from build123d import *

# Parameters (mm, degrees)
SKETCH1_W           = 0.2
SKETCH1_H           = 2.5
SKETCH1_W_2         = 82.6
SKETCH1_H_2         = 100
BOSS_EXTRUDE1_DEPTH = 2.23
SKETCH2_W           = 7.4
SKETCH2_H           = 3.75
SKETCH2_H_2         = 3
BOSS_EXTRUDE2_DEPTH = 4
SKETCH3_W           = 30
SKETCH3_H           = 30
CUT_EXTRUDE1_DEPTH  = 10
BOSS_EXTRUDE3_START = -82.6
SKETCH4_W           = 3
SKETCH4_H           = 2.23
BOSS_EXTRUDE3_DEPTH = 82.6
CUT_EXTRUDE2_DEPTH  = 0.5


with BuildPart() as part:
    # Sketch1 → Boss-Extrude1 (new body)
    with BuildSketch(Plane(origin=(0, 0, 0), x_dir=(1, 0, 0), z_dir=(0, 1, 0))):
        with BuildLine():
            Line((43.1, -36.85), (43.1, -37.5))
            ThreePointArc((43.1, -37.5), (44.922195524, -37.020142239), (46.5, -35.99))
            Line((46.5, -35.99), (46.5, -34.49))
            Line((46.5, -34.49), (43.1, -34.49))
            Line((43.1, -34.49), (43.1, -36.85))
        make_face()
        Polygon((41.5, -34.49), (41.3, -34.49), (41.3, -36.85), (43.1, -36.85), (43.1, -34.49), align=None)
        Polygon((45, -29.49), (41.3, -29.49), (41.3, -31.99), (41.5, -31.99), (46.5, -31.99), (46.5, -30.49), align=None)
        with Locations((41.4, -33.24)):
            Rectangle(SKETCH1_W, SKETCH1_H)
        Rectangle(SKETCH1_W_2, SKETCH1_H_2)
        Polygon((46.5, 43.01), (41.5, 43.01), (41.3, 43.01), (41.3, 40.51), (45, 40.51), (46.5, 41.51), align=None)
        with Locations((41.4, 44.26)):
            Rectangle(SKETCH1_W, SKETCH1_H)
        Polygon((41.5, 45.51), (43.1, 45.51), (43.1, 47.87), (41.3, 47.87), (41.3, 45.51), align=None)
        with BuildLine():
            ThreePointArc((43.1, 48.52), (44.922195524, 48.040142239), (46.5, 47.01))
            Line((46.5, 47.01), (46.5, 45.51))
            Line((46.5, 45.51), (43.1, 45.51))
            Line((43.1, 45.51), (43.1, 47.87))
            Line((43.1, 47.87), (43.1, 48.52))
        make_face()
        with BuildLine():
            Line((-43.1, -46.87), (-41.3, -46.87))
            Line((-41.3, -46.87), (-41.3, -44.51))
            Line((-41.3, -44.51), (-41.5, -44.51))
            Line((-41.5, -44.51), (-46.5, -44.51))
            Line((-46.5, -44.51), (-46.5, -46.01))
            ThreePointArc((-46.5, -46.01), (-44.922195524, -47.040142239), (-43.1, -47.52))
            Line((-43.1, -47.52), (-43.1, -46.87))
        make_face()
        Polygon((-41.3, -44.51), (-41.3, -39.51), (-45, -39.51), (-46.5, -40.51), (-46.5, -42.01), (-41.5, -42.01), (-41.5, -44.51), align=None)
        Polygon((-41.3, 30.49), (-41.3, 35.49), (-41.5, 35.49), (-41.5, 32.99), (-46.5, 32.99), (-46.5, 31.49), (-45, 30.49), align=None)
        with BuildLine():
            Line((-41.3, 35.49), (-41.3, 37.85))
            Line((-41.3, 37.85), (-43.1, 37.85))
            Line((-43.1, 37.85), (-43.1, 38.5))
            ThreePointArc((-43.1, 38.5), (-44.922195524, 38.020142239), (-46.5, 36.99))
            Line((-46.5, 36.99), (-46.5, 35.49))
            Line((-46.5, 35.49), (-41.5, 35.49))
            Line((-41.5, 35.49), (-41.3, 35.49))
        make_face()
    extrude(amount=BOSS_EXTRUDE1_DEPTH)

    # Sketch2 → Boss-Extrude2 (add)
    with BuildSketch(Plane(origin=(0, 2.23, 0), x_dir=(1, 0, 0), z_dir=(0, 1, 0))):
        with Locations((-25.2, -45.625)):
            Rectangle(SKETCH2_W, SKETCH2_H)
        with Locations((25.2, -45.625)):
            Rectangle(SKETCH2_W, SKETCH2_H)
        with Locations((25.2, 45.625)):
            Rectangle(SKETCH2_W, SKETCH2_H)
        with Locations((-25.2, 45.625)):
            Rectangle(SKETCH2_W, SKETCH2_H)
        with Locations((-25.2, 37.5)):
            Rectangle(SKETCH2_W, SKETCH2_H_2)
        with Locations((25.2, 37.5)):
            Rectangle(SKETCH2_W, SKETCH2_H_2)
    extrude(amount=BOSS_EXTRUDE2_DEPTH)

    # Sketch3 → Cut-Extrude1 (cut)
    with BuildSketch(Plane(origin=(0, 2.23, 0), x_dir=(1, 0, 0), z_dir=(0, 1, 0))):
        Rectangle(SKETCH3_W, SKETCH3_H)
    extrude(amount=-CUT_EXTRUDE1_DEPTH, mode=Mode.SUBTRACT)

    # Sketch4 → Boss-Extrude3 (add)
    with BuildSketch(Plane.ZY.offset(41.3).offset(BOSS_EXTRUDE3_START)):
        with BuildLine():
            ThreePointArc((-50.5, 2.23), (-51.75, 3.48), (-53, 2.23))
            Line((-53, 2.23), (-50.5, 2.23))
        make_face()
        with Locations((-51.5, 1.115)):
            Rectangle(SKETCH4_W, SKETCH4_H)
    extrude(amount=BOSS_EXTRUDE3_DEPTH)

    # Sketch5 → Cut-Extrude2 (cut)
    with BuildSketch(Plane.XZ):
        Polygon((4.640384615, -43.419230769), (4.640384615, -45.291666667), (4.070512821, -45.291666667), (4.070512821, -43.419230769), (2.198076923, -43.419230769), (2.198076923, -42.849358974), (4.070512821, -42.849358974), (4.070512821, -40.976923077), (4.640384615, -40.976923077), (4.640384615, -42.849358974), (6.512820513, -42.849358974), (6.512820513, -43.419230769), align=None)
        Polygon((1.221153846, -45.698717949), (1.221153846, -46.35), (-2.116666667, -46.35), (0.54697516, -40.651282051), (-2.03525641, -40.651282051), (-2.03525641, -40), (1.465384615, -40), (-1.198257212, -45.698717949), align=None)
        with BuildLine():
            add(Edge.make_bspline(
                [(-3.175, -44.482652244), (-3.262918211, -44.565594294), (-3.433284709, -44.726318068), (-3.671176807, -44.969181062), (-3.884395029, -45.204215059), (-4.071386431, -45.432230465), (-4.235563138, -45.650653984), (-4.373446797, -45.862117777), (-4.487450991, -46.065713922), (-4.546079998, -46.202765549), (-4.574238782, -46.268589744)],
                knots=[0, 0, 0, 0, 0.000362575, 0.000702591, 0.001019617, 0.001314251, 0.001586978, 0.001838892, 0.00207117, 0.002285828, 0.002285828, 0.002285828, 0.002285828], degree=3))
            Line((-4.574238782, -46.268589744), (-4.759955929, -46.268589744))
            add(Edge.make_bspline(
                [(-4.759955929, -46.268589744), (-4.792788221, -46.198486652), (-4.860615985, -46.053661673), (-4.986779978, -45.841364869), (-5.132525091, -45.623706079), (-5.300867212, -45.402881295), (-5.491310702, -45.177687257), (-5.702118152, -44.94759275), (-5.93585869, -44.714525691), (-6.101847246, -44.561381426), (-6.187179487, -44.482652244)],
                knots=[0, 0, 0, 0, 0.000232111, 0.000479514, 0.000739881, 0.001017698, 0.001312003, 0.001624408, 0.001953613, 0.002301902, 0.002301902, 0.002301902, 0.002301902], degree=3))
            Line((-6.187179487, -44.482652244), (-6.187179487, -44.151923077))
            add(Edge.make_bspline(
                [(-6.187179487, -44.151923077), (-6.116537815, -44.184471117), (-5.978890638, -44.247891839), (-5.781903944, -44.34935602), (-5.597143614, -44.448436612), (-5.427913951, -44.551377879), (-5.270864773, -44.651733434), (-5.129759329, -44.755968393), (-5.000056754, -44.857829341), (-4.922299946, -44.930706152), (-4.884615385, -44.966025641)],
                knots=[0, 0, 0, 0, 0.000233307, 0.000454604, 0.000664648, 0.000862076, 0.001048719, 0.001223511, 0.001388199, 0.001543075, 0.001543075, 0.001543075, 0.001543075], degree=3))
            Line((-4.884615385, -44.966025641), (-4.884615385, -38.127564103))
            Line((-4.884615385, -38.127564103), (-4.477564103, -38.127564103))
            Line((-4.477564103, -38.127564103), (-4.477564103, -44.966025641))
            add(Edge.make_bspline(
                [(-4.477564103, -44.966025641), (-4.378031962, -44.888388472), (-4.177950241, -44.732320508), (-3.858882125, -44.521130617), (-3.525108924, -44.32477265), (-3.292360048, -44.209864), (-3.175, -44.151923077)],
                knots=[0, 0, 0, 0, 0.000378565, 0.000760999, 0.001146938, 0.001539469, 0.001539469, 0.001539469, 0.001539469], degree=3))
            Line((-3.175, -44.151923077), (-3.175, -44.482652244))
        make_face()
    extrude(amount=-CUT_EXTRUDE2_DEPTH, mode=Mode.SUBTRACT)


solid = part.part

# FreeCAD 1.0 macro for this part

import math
import FreeCAD as App
import Part
import Sketcher
Q = App.Units.Quantity


def add_polygon(sketch, points):
    """Adds a closed chain of lines whose ends are joined by coincident constraints."""
    first, n = sketch.GeometryCount, len(points)
    for a, b in zip(points, points[1:] + points[:1]):
        sketch.addGeometry(Part.LineSegment(App.Vector(*a, 0), App.Vector(*b, 0)), False)
    for i in range(n):
        sketch.addConstraint(Sketcher.Constraint("Coincident", first + i, 2, first + (i + 1) % n, 1))

doc = App.newDocument("Part")
params = doc.addObject("Spreadsheet::Sheet", "Params")
for row, (alias, value) in enumerate([
    ("sketch1_width", "5 mm"),
    ("sketch1_height", "70 mm"),
    ("sketch1_width2", "3.7 mm"),
    ("sketch1_width3", "1.8 mm"),
    ("sketch1_width4", "82.6 mm"),
    ("pad1_length", "2.23 mm"),
    ("sketch2_height", "3 mm"),
    ("sketch2_width", "7.4 mm"),
    ("sketch2_height2", "3.75 mm"),
    ("pad2_length", "4 mm"),
    ("sketch3_width", "30 mm"),
    ("pocket1_length", "10 mm"),
    ("sketch4_height", "3 mm"),
    ("sketch4_radius", "1.25 mm"),
    ("sketch4_width", "2.23 mm"),
    ("pad3_length", "82.6 mm"),
    ("pocket2_length", "0.5 mm"),
], start=1):
    params.set(f"A{row}", alias)
    params.set(f"B{row}", "=" + value)
    params.setAlias(f"B{row}", alias)

body = doc.addObject("PartDesign::Body", "Body")

sketch1 = doc.addObject("Sketcher::SketchObject", "Sketch")
body.addObject(sketch1)
sketch1.AttachmentSupport = (doc.XZ_Plane, [""])
sketch1.MapMode = "FlatFace"
sketch1.addGeometry([
    Part.ArcOfCircle(Part.Circle(App.Vector(42.5, 31.6, 0), App.Vector(0, 0, 1), 5.9), math.radians(48), math.radians(84)),
    Part.LineSegment(App.Vector(46.5, 36, 0), App.Vector(46.5, 34.5, 0)),
    Part.LineSegment(App.Vector(46.5, 34.5, 0), App.Vector(41.5, 34.5, 0)),
    Part.LineSegment(App.Vector(41.5, 34.5, 0), App.Vector(41.5, 32, 0)),
    Part.LineSegment(App.Vector(41.5, 32, 0), App.Vector(46.5, 32, 0)),
    Part.LineSegment(App.Vector(46.5, 32, 0), App.Vector(46.5, 30.5, 0)),
    Part.LineSegment(App.Vector(46.5, 30.5, 0), App.Vector(45, 29.5, 0)),
    Part.LineSegment(App.Vector(45, 29.5, 0), App.Vector(41.3, 29.5, 0)),
    Part.LineSegment(App.Vector(41.3, 29.5, 0), App.Vector(41.3, -40.5, 0)),
    Part.LineSegment(App.Vector(41.3, -40.5, 0), App.Vector(45, -40.5, 0)),
    Part.LineSegment(App.Vector(45, -40.5, 0), App.Vector(46.5, -41.5, 0)),
    Part.LineSegment(App.Vector(46.5, -41.5, 0), App.Vector(46.5, -43, 0)),
    Part.LineSegment(App.Vector(46.5, -43, 0), App.Vector(41.5, -43, 0)),
    Part.LineSegment(App.Vector(41.5, -43, 0), App.Vector(41.5, -45.5, 0)),
    Part.LineSegment(App.Vector(41.5, -45.5, 0), App.Vector(46.5, -45.5, 0)),
    Part.LineSegment(App.Vector(46.5, -45.5, 0), App.Vector(46.5, -47, 0)),
    Part.ArcOfCircle(Part.Circle(App.Vector(42.5, -42.7, 0), App.Vector(0, 0, 1), 5.9), math.radians(-84), math.radians(-48)),
    Part.LineSegment(App.Vector(43.1, -48.5, 0), App.Vector(43.1, -47.9, 0)),
    Part.LineSegment(App.Vector(43.1, -47.9, 0), App.Vector(41.3, -47.9, 0)),
    Part.LineSegment(App.Vector(41.3, -47.9, 0), App.Vector(41.3, -50, 0)),
    Part.LineSegment(App.Vector(41.3, -50, 0), App.Vector(-41.3, -50, 0)),
    Part.LineSegment(App.Vector(-41.3, -50, 0), App.Vector(-41.3, -37.9, 0)),
    Part.LineSegment(App.Vector(-41.3, -37.9, 0), App.Vector(-43.1, -37.9, 0)),
    Part.LineSegment(App.Vector(-43.1, -37.9, 0), App.Vector(-43.1, -38.5, 0)),
    Part.ArcOfCircle(Part.Circle(App.Vector(-42.5, -32.6, 0), App.Vector(0, 0, 1), 5.9), math.radians(-132), math.radians(-96)),
    Part.LineSegment(App.Vector(-46.5, -37, 0), App.Vector(-46.5, -35.5, 0)),
    Part.LineSegment(App.Vector(-46.5, -35.5, 0), App.Vector(-41.5, -35.5, 0)),
    Part.LineSegment(App.Vector(-41.5, -35.5, 0), App.Vector(-41.5, -33, 0)),
    Part.LineSegment(App.Vector(-41.5, -33, 0), App.Vector(-46.5, -33, 0)),
    Part.LineSegment(App.Vector(-46.5, -33, 0), App.Vector(-46.5, -31.5, 0)),
    Part.LineSegment(App.Vector(-46.5, -31.5, 0), App.Vector(-45, -30.5, 0)),
    Part.LineSegment(App.Vector(-45, -30.5, 0), App.Vector(-41.3, -30.5, 0)),
    Part.LineSegment(App.Vector(-41.3, -30.5, 0), App.Vector(-41.3, 39.5, 0)),
    Part.LineSegment(App.Vector(-41.3, 39.5, 0), App.Vector(-45, 39.5, 0)),
    Part.LineSegment(App.Vector(-45, 39.5, 0), App.Vector(-46.5, 40.5, 0)),
    Part.LineSegment(App.Vector(-46.5, 40.5, 0), App.Vector(-46.5, 42, 0)),
    Part.LineSegment(App.Vector(-46.5, 42, 0), App.Vector(-41.5, 42, 0)),
    Part.LineSegment(App.Vector(-41.5, 42, 0), App.Vector(-41.5, 44.5, 0)),
    Part.LineSegment(App.Vector(-41.5, 44.5, 0), App.Vector(-46.5, 44.5, 0)),
    Part.LineSegment(App.Vector(-46.5, 44.5, 0), App.Vector(-46.5, 46, 0)),
    Part.ArcOfCircle(Part.Circle(App.Vector(-42.5, 41.7, 0), App.Vector(0, 0, 1), 5.9), math.radians(96), math.radians(132)),
    Part.LineSegment(App.Vector(-43.1, 47.5, 0), App.Vector(-43.1, 46.9, 0)),
    Part.LineSegment(App.Vector(-43.1, 46.9, 0), App.Vector(-41.3, 46.9, 0)),
    Part.LineSegment(App.Vector(-41.3, 46.9, 0), App.Vector(-41.3, 50, 0)),
    Part.LineSegment(App.Vector(-41.3, 50, 0), App.Vector(41.3, 50, 0)),
    Part.LineSegment(App.Vector(41.3, 50, 0), App.Vector(41.3, 36.9, 0)),
    Part.LineSegment(App.Vector(41.3, 36.9, 0), App.Vector(43.1, 36.9, 0)),
    Part.LineSegment(App.Vector(43.1, 36.9, 0), App.Vector(43.1, 37.5, 0)),
], False)
sketch1.addConstraint([
    Sketcher.Constraint("Coincident", 0, 1, 1, 1),
    Sketcher.Constraint("Coincident", 1, 2, 2, 1),
    Sketcher.Constraint("Coincident", 2, 2, 3, 1),
    Sketcher.Constraint("Coincident", 3, 2, 4, 1),
    Sketcher.Constraint("Coincident", 4, 2, 5, 1),
    Sketcher.Constraint("Coincident", 5, 2, 6, 1),
    Sketcher.Constraint("Coincident", 6, 2, 7, 1),
    Sketcher.Constraint("Coincident", 7, 2, 8, 1),
    Sketcher.Constraint("Coincident", 8, 2, 9, 1),
    Sketcher.Constraint("Coincident", 9, 2, 10, 1),
    Sketcher.Constraint("Coincident", 10, 2, 11, 1),
    Sketcher.Constraint("Coincident", 11, 2, 12, 1),
    Sketcher.Constraint("Coincident", 12, 2, 13, 1),
    Sketcher.Constraint("Coincident", 13, 2, 14, 1),
    Sketcher.Constraint("Coincident", 14, 2, 15, 1),
    Sketcher.Constraint("Coincident", 15, 2, 16, 2),
    Sketcher.Constraint("Coincident", 16, 1, 17, 1),
    Sketcher.Constraint("Coincident", 17, 2, 18, 1),
    Sketcher.Constraint("Coincident", 18, 2, 19, 1),
    Sketcher.Constraint("Coincident", 19, 2, 20, 1),
    Sketcher.Constraint("Coincident", 20, 2, 21, 1),
    Sketcher.Constraint("Coincident", 21, 2, 22, 1),
    Sketcher.Constraint("Coincident", 22, 2, 23, 1),
    Sketcher.Constraint("Coincident", 23, 2, 24, 2),
    Sketcher.Constraint("Coincident", 24, 1, 25, 1),
    Sketcher.Constraint("Coincident", 25, 2, 26, 1),
    Sketcher.Constraint("Coincident", 26, 2, 27, 1),
    Sketcher.Constraint("Coincident", 27, 2, 28, 1),
    Sketcher.Constraint("Coincident", 28, 2, 29, 1),
    Sketcher.Constraint("Coincident", 29, 2, 30, 1),
    Sketcher.Constraint("Coincident", 30, 2, 31, 1),
    Sketcher.Constraint("Coincident", 31, 2, 32, 1),
    Sketcher.Constraint("Coincident", 32, 2, 33, 1),
    Sketcher.Constraint("Coincident", 33, 2, 34, 1),
    Sketcher.Constraint("Coincident", 34, 2, 35, 1),
    Sketcher.Constraint("Coincident", 35, 2, 36, 1),
    Sketcher.Constraint("Coincident", 36, 2, 37, 1),
    Sketcher.Constraint("Coincident", 37, 2, 38, 1),
    Sketcher.Constraint("Coincident", 38, 2, 39, 1),
    Sketcher.Constraint("Coincident", 39, 2, 40, 2),
    Sketcher.Constraint("Coincident", 40, 1, 41, 1),
    Sketcher.Constraint("Coincident", 41, 2, 42, 1),
    Sketcher.Constraint("Coincident", 42, 2, 43, 1),
    Sketcher.Constraint("Coincident", 43, 2, 44, 1),
    Sketcher.Constraint("Coincident", 44, 2, 45, 1),
    Sketcher.Constraint("Coincident", 45, 2, 46, 1),
    Sketcher.Constraint("Coincident", 46, 2, 47, 1),
    Sketcher.Constraint("Coincident", 47, 2, 0, 2),
    Sketcher.Constraint("Vertical", 1),
    Sketcher.Constraint("Horizontal", 2),
    Sketcher.Constraint("Vertical", 3),
    Sketcher.Constraint("Horizontal", 4),
    Sketcher.Constraint("Vertical", 5),
    Sketcher.Constraint("Horizontal", 7),
    Sketcher.Constraint("Vertical", 8),
    Sketcher.Constraint("Horizontal", 9),
    Sketcher.Constraint("Vertical", 11),
    Sketcher.Constraint("Horizontal", 12),
    Sketcher.Constraint("Vertical", 13),
    Sketcher.Constraint("Horizontal", 14),
    Sketcher.Constraint("Vertical", 15),
    Sketcher.Constraint("Vertical", 17),
    Sketcher.Constraint("Horizontal", 18),
    Sketcher.Constraint("Vertical", 19),
    Sketcher.Constraint("Horizontal", 20),
    Sketcher.Constraint("Vertical", 21),
    Sketcher.Constraint("Horizontal", 22),
    Sketcher.Constraint("Vertical", 23),
    Sketcher.Constraint("Vertical", 25),
    Sketcher.Constraint("Horizontal", 26),
    Sketcher.Constraint("Vertical", 27),
    Sketcher.Constraint("Horizontal", 28),
    Sketcher.Constraint("Vertical", 29),
    Sketcher.Constraint("Horizontal", 31),
    Sketcher.Constraint("Vertical", 32),
    Sketcher.Constraint("Horizontal", 33),
    Sketcher.Constraint("Vertical", 35),
    Sketcher.Constraint("Horizontal", 36),
    Sketcher.Constraint("Vertical", 37),
    Sketcher.Constraint("Horizontal", 38),
    Sketcher.Constraint("Vertical", 39),
    Sketcher.Constraint("Vertical", 41),
    Sketcher.Constraint("Horizontal", 42),
    Sketcher.Constraint("Vertical", 43),
    Sketcher.Constraint("Horizontal", 44),
    Sketcher.Constraint("Vertical", 45),
    Sketcher.Constraint("Horizontal", 46),
    Sketcher.Constraint("Vertical", 47),
    Sketcher.Constraint("Equal", 0, 16),
    Sketcher.Constraint("Equal", 16, 24),
    Sketcher.Constraint("Equal", 24, 40),
    Sketcher.Constraint("Symmetric", 19, 2, 43, 2, -1, 1),
    Sketcher.Constraint("Parallel", 6, 30),
    Sketcher.Constraint("Parallel", 10, 34),
    Sketcher.Constraint("Vertical", 0, 3, 16, 3),
    Sketcher.Constraint("Vertical", 24, 3, 40, 3),
    Sketcher.Constraint("Vertical", 1, 2, 4, 2),
    Sketcher.Constraint("Vertical", 6, 2, 9, 2),
    Sketcher.Constraint("Vertical", 5, 2, 10, 2),
    Sketcher.Constraint("Vertical", 3, 2, 12, 2),
    Sketcher.Constraint("Vertical", 11, 2, 14, 2),
    Sketcher.Constraint("Vertical", 8, 2, 18, 2),
    Sketcher.Constraint("Vertical", 25, 2, 28, 2),
    Sketcher.Constraint("Vertical", 21, 2, 31, 2),
    Sketcher.Constraint("Vertical", 30, 2, 33, 2),
    Sketcher.Constraint("Vertical", 29, 2, 34, 2),
    Sketcher.Constraint("Vertical", 27, 2, 36, 2),
    Sketcher.Constraint("Vertical", 35, 2, 38, 2),
    Sketcher.Constraint("Vertical", 23, 2, 40, 1),
    Sketcher.Constraint("Vertical", 32, 2, 42, 2),
    Sketcher.Constraint("Vertical", 19, 2, 44, 2),
    Sketcher.Constraint("Vertical", 17, 2, 46, 2),
    Sketcher.Constraint("Equal", 18, 22),
    Sketcher.Constraint("Equal", 14, 26),
    Sketcher.Constraint("Equal", 9, 31),
    Sketcher.Constraint("Equal", 1, 5),
    Sketcher.Constraint("Equal", 5, 11),
    Sketcher.Constraint("Equal", 3, 13),
    Sketcher.Constraint("Equal", 11, 15),
    Sketcher.Constraint("Equal", 17, 23),
    Sketcher.Constraint("Equal", 15, 25),
    Sketcher.Constraint("Equal", 13, 27),
    Sketcher.Constraint("Equal", 25, 29),
    Sketcher.Constraint("Equal", 8, 32),
    Sketcher.Constraint("Equal", 29, 35),
    Sketcher.Constraint("Equal", 27, 37),
    Sketcher.Constraint("Equal", 35, 39),
    Sketcher.Constraint("Equal", 23, 41),
    Sketcher.Constraint("Equal", 41, 47),
    Sketcher.Constraint("Equal", 6, 10),
    Sketcher.Constraint("Equal", 10, 30),
    Sketcher.Constraint("DistanceX", 2, 2, 2, 1, Q("5 mm")),
    Sketcher.Constraint("DistanceY", 8, 2, 8, 1, Q("70 mm")),
    Sketcher.Constraint("DistanceX", 7, 2, 7, 1, Q("3.7 mm")),
    Sketcher.Constraint("DistanceX", 18, 2, 18, 1, Q("1.8 mm")),
    Sketcher.Constraint("DistanceX", 20, 2, 20, 1, Q("82.6 mm")),
    Sketcher.Constraint("DistanceY", 1, 2, 1, 1, Q("1.5 mm")),
    Sketcher.Constraint("DistanceY", 3, 2, 3, 1, Q("2.5 mm")),
    Sketcher.Constraint("DistanceY", 19, 2, -1, 1, Q("50 mm")),
    Sketcher.Constraint("Radius", 0, Q("5.897 mm")),
    Sketcher.Constraint("DistanceY", 6, 2, 5, 2, Q("1 mm")),
    Sketcher.Constraint("DistanceY", 17, 1, 17, 2, Q("0.65 mm")),
    Sketcher.Constraint("DistanceY", 19, 2, 19, 1, Q("2.13 mm")),
    Sketcher.Constraint("DistanceY", 21, 1, 21, 2, Q("12.15 mm")),
    Sketcher.Constraint("DistanceY", 43, 1, 43, 2, Q("3.13 mm")),
    Sketcher.Constraint("DistanceY", 45, 2, 45, 1, Q("13.15 mm")),
    Sketcher.Constraint("DistanceX", -1, 1, 0, 1, Q("46.5 mm")),
])
sketch1.setExpression("Constraints[131]", "Params.sketch1_width")
sketch1.setExpression("Constraints[132]", "Params.sketch1_height")
sketch1.setExpression("Constraints[133]", "Params.sketch1_width2")
sketch1.setExpression("Constraints[134]", "Params.sketch1_width3")
sketch1.setExpression("Constraints[135]", "Params.sketch1_width4")
pad1 = doc.addObject("PartDesign::Pad", "Pad")
body.addObject(pad1)
pad1.Profile = sketch1
pad1.setExpression("Length", "Params.pad1_length")
pad1.Reversed = True

sketch2 = doc.addObject("Sketcher::SketchObject", "Sketch001")
body.addObject(sketch2)
sketch2.AttachmentSupport = (doc.XZ_Plane, [""])
sketch2.MapMode = "FlatFace"
sketch2.AttachmentOffset = App.Placement(App.Vector(0, 0, -2.23), App.Rotation())
add_polygon(sketch2, [(-28.9, 43.8), (-28.9, 47.5), (-21.5, 47.5), (-21.5, 43.8)])
add_polygon(sketch2, [(21.5, 43.8), (21.5, 47.5), (28.9, 47.5), (28.9, 43.8)])
add_polygon(sketch2, [(21.5, -47.5), (21.5, -43.8), (28.9, -43.8), (28.9, -47.5)])
add_polygon(sketch2, [(-28.9, -47.5), (-28.9, -43.8), (-21.5, -43.8), (-21.5, -47.5)])
add_polygon(sketch2, [(-28.9, -39), (-28.9, -36), (-21.5, -36), (-21.5, -39)])
add_polygon(sketch2, [(21.5, -39), (21.5, -36), (28.9, -36), (28.9, -39)])
sketch2.addConstraint([
    Sketcher.Constraint("Vertical", 0),
    Sketcher.Constraint("Horizontal", 1),
    Sketcher.Constraint("Vertical", 2),
    Sketcher.Constraint("Horizontal", 3),
    Sketcher.Constraint("Vertical", 4),
    Sketcher.Constraint("Horizontal", 5),
    Sketcher.Constraint("Vertical", 6),
    Sketcher.Constraint("Horizontal", 7),
    Sketcher.Constraint("Vertical", 8),
    Sketcher.Constraint("Horizontal", 9),
    Sketcher.Constraint("Vertical", 10),
    Sketcher.Constraint("Horizontal", 11),
    Sketcher.Constraint("Vertical", 12),
    Sketcher.Constraint("Horizontal", 13),
    Sketcher.Constraint("Vertical", 14),
    Sketcher.Constraint("Horizontal", 15),
    Sketcher.Constraint("Vertical", 16),
    Sketcher.Constraint("Horizontal", 17),
    Sketcher.Constraint("Vertical", 18),
    Sketcher.Constraint("Horizontal", 19),
    Sketcher.Constraint("Vertical", 20),
    Sketcher.Constraint("Horizontal", 21),
    Sketcher.Constraint("Vertical", 22),
    Sketcher.Constraint("Horizontal", 23),
    Sketcher.Constraint("Symmetric", 2, 2, 8, 2, -1, 1),
    Sketcher.Constraint("Symmetric", 0, 2, 10, 2, -1, 1),
    Sketcher.Constraint("Symmetric", 6, 2, 12, 2, -1, 1),
    Sketcher.Constraint("Symmetric", 4, 2, 14, 2, -1, 1),
    Sketcher.Constraint("Symmetric", 1, 2, 4, 2, -2),
    Sketcher.Constraint("Symmetric", 3, 2, 6, 2, -2),
    Sketcher.Constraint("Symmetric", 17, 2, 20, 2, -2),
    Sketcher.Constraint("Symmetric", 19, 2, 22, 2, -2),
    Sketcher.Constraint("Vertical", 15, 2, 16, 2),
    Sketcher.Constraint("Vertical", 14, 2, 17, 2),
    Sketcher.Constraint("DistanceY", 16, 1, 16, 2, Q("3 mm")),
    Sketcher.Constraint("DistanceX", 1, 1, 1, 2, Q("7.4 mm")),
    Sketcher.Constraint("DistanceY", 16, 2, -1, 1, Q("36 mm")),
    Sketcher.Constraint("DistanceX", 1, 2, 4, 2, Q("43 mm")),
    Sketcher.Constraint("DistanceY", 10, 2, 5, 2, Q("95 mm")),
    Sketcher.Constraint("DistanceY", 0, 1, 0, 2, Q("3.75 mm")),
])
sketch2.setExpression("Constraints[58]", "Params.sketch2_height")
sketch2.setExpression("Constraints[59]", "Params.sketch2_width")
sketch2.setExpression("Constraints[63]", "Params.sketch2_height2")
pad2 = doc.addObject("PartDesign::Pad", "Pad001")
body.addObject(pad2)
pad2.Profile = sketch2
pad2.setExpression("Length", "Params.pad2_length")
pad2.Reversed = True

sketch3 = doc.addObject("Sketcher::SketchObject", "Sketch002")
body.addObject(sketch3)
sketch3.AttachmentSupport = (doc.XZ_Plane, [""])
sketch3.MapMode = "FlatFace"
sketch3.AttachmentOffset = App.Placement(App.Vector(0, 0, -2.23), App.Rotation())
add_polygon(sketch3, [(-15, -15), (-15, 15), (15, 15), (15, -15)])
sketch3.addConstraint([
    Sketcher.Constraint("Vertical", 0),
    Sketcher.Constraint("Horizontal", 1),
    Sketcher.Constraint("Vertical", 2),
    Sketcher.Constraint("Horizontal", 3),
    Sketcher.Constraint("Symmetric", 0, 2, 2, 2, -1, 1),
    Sketcher.Constraint("Equal", 3, 0),
    Sketcher.Constraint("DistanceX", 1, 1, 1, 2, Q("30 mm")),
])
sketch3.setExpression("Constraints[10]", "Params.sketch3_width")
pocket1 = doc.addObject("PartDesign::Pocket", "Pocket")
body.addObject(pocket1)
pocket1.Profile = sketch3
pocket1.setExpression("Length", "Params.pocket1_length")
pocket1.Reversed = True

sketch4 = doc.addObject("Sketcher::SketchObject", "Sketch003")
body.addObject(sketch4)
sketch4.AttachmentSupport = (doc.YZ_Plane, [""])
sketch4.MapMode = "FlatFace"
sketch4.AttachmentOffset = App.Placement(App.Vector(0, 0, 41.3), App.Rotation())
sketch4.addGeometry([
    Part.ArcOfCircle(Part.Circle(App.Vector(2.2, -51.8, 0), App.Vector(0, 0, 1), 1.2), math.radians(-90), math.radians(90)),
    Part.LineSegment(App.Vector(2.2, -53, 0), App.Vector(0, -53, 0)),
    Part.LineSegment(App.Vector(0, -53, 0), App.Vector(0, -50, 0)),
    Part.LineSegment(App.Vector(0, -50, 0), App.Vector(2.2, -50, 0)),
    Part.LineSegment(App.Vector(2.2, -50, 0), App.Vector(2.2, -50.5, 0)),
], False)
sketch4.addConstraint([
    Sketcher.Constraint("Tangent", 0, 1, 1, 1),
    Sketcher.Constraint("Coincident", 1, 2, 2, 1),
    Sketcher.Constraint("Coincident", 2, 2, 3, 1),
    Sketcher.Constraint("Coincident", 3, 2, 4, 1),
    Sketcher.Constraint("Coincident", 4, 2, 0, 2),
    Sketcher.Constraint("Horizontal", 1),
    Sketcher.Constraint("Vertical", 2),
    Sketcher.Constraint("Horizontal", 3),
    Sketcher.Constraint("Vertical", 4),
    Sketcher.Constraint("PointOnObject", 1, 2, -2),
    Sketcher.Constraint("Vertical", 0, 1, 3, 2),
    Sketcher.Constraint("DistanceY", 2, 1, 2, 2, Q("3 mm")),
    Sketcher.Constraint("Radius", 0, Q("1.25 mm")),
    Sketcher.Constraint("DistanceY", 0, 1, -1, 1, Q("53 mm")),
    Sketcher.Constraint("DistanceX", 1, 2, 1, 1, Q("2.23 mm")),
])
sketch4.setExpression("Constraints[11]", "Params.sketch4_height")
sketch4.setExpression("Constraints[12]", "Params.sketch4_radius")
sketch4.setExpression("Constraints[14]", "Params.sketch4_width")
pad3 = doc.addObject("PartDesign::Pad", "Pad002")
body.addObject(pad3)
pad3.Profile = sketch4
pad3.setExpression("Length", "Params.pad3_length")
pad3.Reversed = True

sketch5 = doc.addObject("Sketcher::SketchObject", "Sketch004")
body.addObject(sketch5)
sketch5.AttachmentSupport = (doc.XZ_Plane, [""])
sketch5.MapMode = "FlatFace"
add_polygon(sketch5, [(4.640385, -45.291667), (4.640385, -43.419231), (6.512821, -43.419231), (6.512821, -42.849359), (4.640385, -42.849359), (4.640385, -40.976923), (4.070513, -40.976923), (4.070513, -42.849359), (2.198077, -42.849359), (2.198077, -43.419231), (4.070513, -43.419231), (4.070513, -45.291667)])
add_polygon(sketch5, [(1.221154, -46.35), (1.221154, -45.698718), (-1.198257, -45.698718), (1.465385, -40), (-2.035256, -40), (-2.035256, -40.651282), (0.546975, -40.651282), (-2.116667, -46.35)])
sketch5.addGeometry(Part.BSplineCurve([App.Vector(-3.175, -44.482652, 0), App.Vector(-3.262918, -44.565594, 0), App.Vector(-3.433285, -44.726318, 0), App.Vector(-3.671177, -44.969181, 0), App.Vector(-3.884395, -45.204215, 0), App.Vector(-4.071386, -45.43223, 0), App.Vector(-4.235563, -45.650654, 0), App.Vector(-4.373447, -45.862118, 0), App.Vector(-4.487451, -46.065714, 0), App.Vector(-4.54608, -46.202766, 0), App.Vector(-4.574239, -46.26859, 0)], [4, 1, 1, 1, 1, 1, 1, 1, 4], [0, 0.000362575, 0.000702591, 0.001019617, 0.001314251, 0.001586978, 0.001838892, 0.00207117, 0.002285828], False, 3, [1, 1, 1, 1, 1, 1, 1, 1, 1, 1, 1], False), False)
sketch5.addGeometry(Part.LineSegment(App.Vector(-3.175, -44.482652, 0), App.Vector(-3.175, -44.151923, 0)), False)
sketch5.addGeometry(Part.BSplineCurve([App.Vector(-4.477564, -44.966026, 0), App.Vector(-4.378032, -44.888388, 0), App.Vector(-4.17795, -44.732321, 0), App.Vector(-3.858882, -44.521131, 0), App.Vector(-3.525109, -44.324773, 0), App.Vector(-3.29236, -44.209864, 0), App.Vector(-3.175, -44.151923, 0)], [4, 1, 1, 1, 4], [0, 0.000378565, 0.000760999, 0.001146938, 0.001539469], False, 3, [1, 1, 1, 1, 1, 1, 1], False), False)
sketch5.addGeometry(Part.LineSegment(App.Vector(-4.477564, -44.966026, 0), App.Vector(-4.477564, -38.127564, 0)), False)
sketch5.addGeometry(Part.LineSegment(App.Vector(-4.477564, -38.127564, 0), App.Vector(-4.884615, -38.127564, 0)), False)
sketch5.addGeometry(Part.LineSegment(App.Vector(-4.884615, -38.127564, 0), App.Vector(-4.884615, -44.966026, 0)), False)
sketch5.addGeometry(Part.BSplineCurve([App.Vector(-6.187179, -44.151923, 0), App.Vector(-6.116538, -44.184471, 0), App.Vector(-5.978891, -44.247892, 0), App.Vector(-5.781904, -44.349356, 0), App.Vector(-5.597144, -44.448437, 0), App.Vector(-5.427914, -44.551378, 0), App.Vector(-5.270865, -44.651733, 0), App.Vector(-5.129759, -44.755968, 0), App.Vector(-5.000057, -44.857829, 0), App.Vector(-4.9223, -44.930706, 0), App.Vector(-4.884615, -44.966026, 0)], [4, 1, 1, 1, 1, 1, 1, 1, 4], [0, 0.000233307, 0.000454604, 0.000664648, 0.000862076, 0.001048719, 0.001223511, 0.001388199, 0.001543075], False, 3, [1, 1, 1, 1, 1, 1, 1, 1, 1, 1, 1], False), False)
sketch5.addGeometry(Part.LineSegment(App.Vector(-6.187179, -44.151923, 0), App.Vector(-6.187179, -44.482652, 0)), False)
sketch5.addGeometry(Part.BSplineCurve([App.Vector(-4.759956, -46.26859, 0), App.Vector(-4.792788, -46.198487, 0), App.Vector(-4.860616, -46.053662, 0), App.Vector(-4.98678, -45.841365, 0), App.Vector(-5.132525, -45.623706, 0), App.Vector(-5.300867, -45.402881, 0), App.Vector(-5.491311, -45.177687, 0), App.Vector(-5.702118, -44.947593, 0), App.Vector(-5.935859, -44.714526, 0), App.Vector(-6.101847, -44.561381, 0), App.Vector(-6.187179, -44.482652, 0)], [4, 1, 1, 1, 1, 1, 1, 1, 4], [0, 0.000232111, 0.000479514, 0.000739881, 0.001017698, 0.001312003, 0.001624408, 0.001953613, 0.002301902], False, 3, [1, 1, 1, 1, 1, 1, 1, 1, 1, 1, 1], False), False)
sketch5.addGeometry(Part.LineSegment(App.Vector(-4.759956, -46.26859, 0), App.Vector(-4.574239, -46.26859, 0)), False)
sketch5.addConstraint([
    Sketcher.Constraint("Block", 20),
    Sketcher.Constraint("Block", 22),
    Sketcher.Constraint("Block", 26),
    Sketcher.Constraint("Block", 28),
    Sketcher.Constraint("Coincident", 20, 1, 21, 1),
    Sketcher.Constraint("Coincident", 21, 2, 22, 2),
    Sketcher.Constraint("Coincident", 22, 1, 23, 1),
    Sketcher.Constraint("Coincident", 23, 2, 24, 1),
    Sketcher.Constraint("Coincident", 24, 2, 25, 1),
    Sketcher.Constraint("Coincident", 25, 2, 26, 2),
    Sketcher.Constraint("Coincident", 26, 1, 27, 1),
    Sketcher.Constraint("Coincident", 27, 2, 28, 2),
    Sketcher.Constraint("Coincident", 28, 1, 29, 1),
    Sketcher.Constraint("Coincident", 29, 2, 20, 2),
    Sketcher.Constraint("Vertical", 0),
    Sketcher.Constraint("Horizontal", 1),
    Sketcher.Constraint("Vertical", 2),
    Sketcher.Constraint("Horizontal", 3),
    Sketcher.Constraint("Vertical", 4),
    Sketcher.Constraint("Horizontal", 5),
    Sketcher.Constraint("Vertical", 6),
    Sketcher.Constraint("Horizontal", 7),
    Sketcher.Constraint("Vertical", 8),
    Sketcher.Constraint("Horizontal", 9),
    Sketcher.Constraint("Vertical", 10),
    Sketcher.Constraint("Horizontal", 11),
    Sketcher.Constraint("Vertical", 12),
    Sketcher.Constraint("Horizontal", 13),
    Sketcher.Constraint("Horizontal", 15),
    Sketcher.Constraint("Vertical", 16),
    Sketcher.Constraint("Horizontal", 17),
    Sketcher.Constraint("Horizontal", 19),
    Sketcher.Constraint("Vertical", 23),
    Sketcher.Constraint("Horizontal", 24),
    Sketcher.Constraint("Vertical", 25),
    Sketcher.Constraint("Parallel", 14, 18),
    Sketcher.Constraint("Horizontal", 3, 2, 6, 2),
    Sketcher.Constraint("Horizontal", 1, 2, 8, 2),
    Sketcher.Constraint("Vertical", 0, 2, 3, 2),
    Sketcher.Constraint("Vertical", 6, 2, 9, 2),
    Sketcher.Constraint("Equal", 3, 7),
    Sketcher.Constraint("Equal", 9, 0),
    Sketcher.Constraint("Equal", 11, 2),
    Sketcher.Constraint("Equal", 0, 4),
    Sketcher.Constraint("Equal", 12, 16),
    Sketcher.Constraint("DistanceY", 14, 2, -1, 1, Q("40 mm")),
    Sketcher.Constraint("DistanceY", 18, 2, -1, 1, Q("46.35 mm")),
    Sketcher.Constraint("DistanceX", 14, 2, 4, 2, Q("3.175 mm")),
    Sketcher.Constraint("DistanceX", 15, 2, 13, 2, Q("0.836999 mm")),
    Sketcher.Constraint("Distance", 14, Q("6.290499 mm")),
    Sketcher.Constraint("DistanceX", 5, 2, 5, 1, Q("0.569872 mm")),
    Sketcher.Constraint("DistanceX", 13, 2, 13, 1, Q("2.419411 mm")),
    Sketcher.Constraint("DistanceX", 15, 2, 15, 1, Q("3.500641 mm")),
    Sketcher.Constraint("DistanceX", 17, 1, 17, 2, Q("2.582232 mm")),
    Sketcher.Constraint("DistanceY", 23, 1, 23, 2, Q("6.838462 mm")),
    Sketcher.Constraint("DistanceX", 17, 2, 7, 2, Q("1.651102 mm")),
    Sketcher.Constraint("DistanceY", 0, 2, -1, 1, Q("43.419231 mm")),
    Sketcher.Constraint("DistanceX", -1, 1, 1, 2, Q("6.512821 mm")),
])
pocket2 = doc.addObject("PartDesign::Pocket", "Pocket001")
body.addObject(pocket2)
pocket2.Profile = sketch5
pocket2.setExpression("Length", "Params.pocket2_length")

doc.recompute()
